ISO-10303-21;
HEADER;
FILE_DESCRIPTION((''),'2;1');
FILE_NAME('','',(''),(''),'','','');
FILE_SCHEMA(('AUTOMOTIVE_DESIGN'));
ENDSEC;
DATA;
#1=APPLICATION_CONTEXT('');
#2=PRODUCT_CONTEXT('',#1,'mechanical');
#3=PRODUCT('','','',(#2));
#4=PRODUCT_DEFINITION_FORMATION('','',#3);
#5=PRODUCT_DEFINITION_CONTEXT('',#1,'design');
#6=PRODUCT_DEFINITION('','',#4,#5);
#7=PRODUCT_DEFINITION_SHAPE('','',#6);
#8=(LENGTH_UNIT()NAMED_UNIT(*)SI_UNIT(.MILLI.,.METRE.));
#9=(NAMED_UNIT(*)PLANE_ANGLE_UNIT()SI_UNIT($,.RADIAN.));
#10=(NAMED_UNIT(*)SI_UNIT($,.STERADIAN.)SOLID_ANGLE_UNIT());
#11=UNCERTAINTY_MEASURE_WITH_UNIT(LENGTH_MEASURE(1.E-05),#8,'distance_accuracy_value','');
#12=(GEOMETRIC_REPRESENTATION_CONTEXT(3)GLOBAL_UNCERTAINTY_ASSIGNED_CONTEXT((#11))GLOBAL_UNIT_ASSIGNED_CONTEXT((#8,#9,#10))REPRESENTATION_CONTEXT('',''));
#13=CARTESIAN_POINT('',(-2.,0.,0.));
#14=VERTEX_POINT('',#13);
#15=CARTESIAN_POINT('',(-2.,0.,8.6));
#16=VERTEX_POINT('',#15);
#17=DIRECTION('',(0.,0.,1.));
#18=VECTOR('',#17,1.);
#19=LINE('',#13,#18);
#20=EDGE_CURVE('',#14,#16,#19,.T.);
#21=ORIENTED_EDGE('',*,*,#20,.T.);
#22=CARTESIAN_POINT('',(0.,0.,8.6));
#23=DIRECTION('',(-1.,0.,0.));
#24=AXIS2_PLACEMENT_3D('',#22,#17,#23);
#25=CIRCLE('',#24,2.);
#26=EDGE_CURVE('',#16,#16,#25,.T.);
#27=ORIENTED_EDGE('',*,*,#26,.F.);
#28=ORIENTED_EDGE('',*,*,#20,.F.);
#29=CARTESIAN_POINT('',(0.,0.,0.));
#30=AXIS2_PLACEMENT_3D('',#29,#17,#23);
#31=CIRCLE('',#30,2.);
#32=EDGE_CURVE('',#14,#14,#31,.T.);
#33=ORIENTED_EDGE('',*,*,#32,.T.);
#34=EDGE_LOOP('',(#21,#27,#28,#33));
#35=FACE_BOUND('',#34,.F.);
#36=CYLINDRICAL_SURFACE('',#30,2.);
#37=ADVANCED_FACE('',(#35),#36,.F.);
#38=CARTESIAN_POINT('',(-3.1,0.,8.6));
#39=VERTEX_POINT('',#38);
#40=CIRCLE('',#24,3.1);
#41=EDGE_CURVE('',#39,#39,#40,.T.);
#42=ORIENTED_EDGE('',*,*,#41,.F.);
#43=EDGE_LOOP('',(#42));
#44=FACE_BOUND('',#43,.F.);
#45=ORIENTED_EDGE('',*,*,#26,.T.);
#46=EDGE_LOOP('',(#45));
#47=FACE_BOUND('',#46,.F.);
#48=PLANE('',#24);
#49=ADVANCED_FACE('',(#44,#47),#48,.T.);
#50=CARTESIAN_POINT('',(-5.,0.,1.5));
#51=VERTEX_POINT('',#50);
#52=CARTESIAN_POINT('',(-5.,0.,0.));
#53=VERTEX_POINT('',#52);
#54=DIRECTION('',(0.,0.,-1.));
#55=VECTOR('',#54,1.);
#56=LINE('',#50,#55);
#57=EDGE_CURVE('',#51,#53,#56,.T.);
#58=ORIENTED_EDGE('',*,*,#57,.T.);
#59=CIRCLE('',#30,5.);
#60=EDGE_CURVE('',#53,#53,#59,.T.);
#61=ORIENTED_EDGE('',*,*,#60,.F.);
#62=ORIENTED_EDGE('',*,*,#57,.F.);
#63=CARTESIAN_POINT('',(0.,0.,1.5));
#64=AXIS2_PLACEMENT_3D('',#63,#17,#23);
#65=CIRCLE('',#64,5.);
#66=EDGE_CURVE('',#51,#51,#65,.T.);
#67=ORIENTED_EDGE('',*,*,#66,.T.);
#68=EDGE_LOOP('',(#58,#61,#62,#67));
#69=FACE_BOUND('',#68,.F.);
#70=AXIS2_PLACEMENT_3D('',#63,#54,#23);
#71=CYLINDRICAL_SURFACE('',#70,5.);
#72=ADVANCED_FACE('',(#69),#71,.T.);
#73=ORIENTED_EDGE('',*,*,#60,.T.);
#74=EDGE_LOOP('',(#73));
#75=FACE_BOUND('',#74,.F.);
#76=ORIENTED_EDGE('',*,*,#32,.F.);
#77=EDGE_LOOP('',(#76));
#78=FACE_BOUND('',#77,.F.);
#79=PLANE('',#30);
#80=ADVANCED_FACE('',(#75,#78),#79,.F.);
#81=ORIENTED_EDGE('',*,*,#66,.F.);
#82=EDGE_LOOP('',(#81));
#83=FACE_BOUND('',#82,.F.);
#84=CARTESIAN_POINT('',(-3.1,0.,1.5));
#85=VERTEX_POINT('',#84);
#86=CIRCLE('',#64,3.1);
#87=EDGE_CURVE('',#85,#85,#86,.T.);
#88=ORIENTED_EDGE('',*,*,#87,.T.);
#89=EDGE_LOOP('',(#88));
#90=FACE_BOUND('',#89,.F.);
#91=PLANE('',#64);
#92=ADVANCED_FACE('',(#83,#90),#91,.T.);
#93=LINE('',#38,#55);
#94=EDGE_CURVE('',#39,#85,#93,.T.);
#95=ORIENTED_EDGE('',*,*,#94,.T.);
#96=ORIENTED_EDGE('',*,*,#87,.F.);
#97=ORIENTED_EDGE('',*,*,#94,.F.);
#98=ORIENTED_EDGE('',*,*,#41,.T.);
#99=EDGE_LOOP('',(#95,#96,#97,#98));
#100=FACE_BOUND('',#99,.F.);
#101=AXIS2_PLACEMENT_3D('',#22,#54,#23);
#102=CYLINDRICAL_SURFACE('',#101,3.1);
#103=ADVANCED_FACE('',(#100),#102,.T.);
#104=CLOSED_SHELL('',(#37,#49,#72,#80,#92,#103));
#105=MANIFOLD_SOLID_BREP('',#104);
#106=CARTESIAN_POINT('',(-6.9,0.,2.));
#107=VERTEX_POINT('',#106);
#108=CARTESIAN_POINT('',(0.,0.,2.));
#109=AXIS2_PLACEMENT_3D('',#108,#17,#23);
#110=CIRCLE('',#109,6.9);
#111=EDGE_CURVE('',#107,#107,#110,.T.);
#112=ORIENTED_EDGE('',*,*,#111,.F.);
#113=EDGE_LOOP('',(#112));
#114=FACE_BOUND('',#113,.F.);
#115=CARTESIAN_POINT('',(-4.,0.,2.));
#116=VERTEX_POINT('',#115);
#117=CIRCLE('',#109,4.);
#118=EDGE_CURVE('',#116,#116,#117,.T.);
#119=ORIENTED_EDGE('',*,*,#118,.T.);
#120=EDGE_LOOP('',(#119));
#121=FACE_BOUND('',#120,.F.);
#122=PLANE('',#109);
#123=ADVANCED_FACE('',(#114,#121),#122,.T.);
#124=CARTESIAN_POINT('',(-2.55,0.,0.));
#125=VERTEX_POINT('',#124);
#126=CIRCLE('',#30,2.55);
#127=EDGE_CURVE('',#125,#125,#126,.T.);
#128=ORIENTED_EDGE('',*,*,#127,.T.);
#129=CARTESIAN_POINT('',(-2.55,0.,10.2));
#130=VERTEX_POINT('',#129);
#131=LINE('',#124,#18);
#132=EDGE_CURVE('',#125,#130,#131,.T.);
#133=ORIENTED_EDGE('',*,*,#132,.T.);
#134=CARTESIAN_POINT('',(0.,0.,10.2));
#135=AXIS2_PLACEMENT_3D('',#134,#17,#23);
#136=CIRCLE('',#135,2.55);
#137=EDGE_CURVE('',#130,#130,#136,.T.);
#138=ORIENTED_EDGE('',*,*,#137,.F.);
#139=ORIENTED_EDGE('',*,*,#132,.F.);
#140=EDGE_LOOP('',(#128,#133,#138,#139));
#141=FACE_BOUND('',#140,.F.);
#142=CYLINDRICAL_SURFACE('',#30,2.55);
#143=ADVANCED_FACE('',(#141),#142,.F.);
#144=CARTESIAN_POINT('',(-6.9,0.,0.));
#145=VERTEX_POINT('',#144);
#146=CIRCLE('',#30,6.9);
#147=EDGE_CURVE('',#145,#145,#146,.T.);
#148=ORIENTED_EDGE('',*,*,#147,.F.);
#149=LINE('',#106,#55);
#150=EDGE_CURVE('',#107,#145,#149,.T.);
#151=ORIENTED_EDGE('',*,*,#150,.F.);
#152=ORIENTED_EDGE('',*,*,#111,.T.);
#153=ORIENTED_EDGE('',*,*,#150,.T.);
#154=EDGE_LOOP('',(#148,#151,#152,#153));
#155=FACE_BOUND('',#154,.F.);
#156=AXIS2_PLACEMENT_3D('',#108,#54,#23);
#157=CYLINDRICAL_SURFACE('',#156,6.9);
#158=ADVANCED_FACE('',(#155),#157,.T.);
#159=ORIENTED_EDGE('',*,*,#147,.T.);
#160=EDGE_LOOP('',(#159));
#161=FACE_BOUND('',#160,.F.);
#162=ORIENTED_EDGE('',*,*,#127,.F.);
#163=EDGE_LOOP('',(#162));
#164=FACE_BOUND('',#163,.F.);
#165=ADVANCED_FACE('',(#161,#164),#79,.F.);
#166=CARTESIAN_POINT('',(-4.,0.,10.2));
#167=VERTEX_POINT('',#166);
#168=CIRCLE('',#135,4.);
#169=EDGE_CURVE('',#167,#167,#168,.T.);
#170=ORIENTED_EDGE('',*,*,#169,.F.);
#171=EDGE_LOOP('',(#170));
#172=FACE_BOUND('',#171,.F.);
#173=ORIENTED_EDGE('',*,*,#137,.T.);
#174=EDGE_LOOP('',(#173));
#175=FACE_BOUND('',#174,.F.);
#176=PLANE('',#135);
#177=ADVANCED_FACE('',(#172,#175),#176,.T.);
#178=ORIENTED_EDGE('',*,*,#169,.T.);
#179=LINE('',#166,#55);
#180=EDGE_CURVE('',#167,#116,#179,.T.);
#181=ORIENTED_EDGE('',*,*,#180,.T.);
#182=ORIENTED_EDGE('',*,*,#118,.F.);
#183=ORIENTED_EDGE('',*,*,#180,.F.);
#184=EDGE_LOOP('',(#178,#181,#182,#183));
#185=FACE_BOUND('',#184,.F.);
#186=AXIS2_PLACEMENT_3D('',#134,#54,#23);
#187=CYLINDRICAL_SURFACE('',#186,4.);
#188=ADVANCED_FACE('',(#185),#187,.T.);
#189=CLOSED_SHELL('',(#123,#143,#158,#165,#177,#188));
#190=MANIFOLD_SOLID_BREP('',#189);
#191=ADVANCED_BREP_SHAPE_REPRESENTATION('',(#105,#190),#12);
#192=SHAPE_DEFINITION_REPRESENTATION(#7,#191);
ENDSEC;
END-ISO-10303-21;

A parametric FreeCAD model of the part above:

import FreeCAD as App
import Part
import Sketcher

V = App.Vector

doc = App.newDocument("Part")
body = doc.addObject("PartDesign::Body", "Body")

sketch1 = body.newObject("Sketcher::SketchObject", "Sketch")
sketch1.AttachmentSupport = (doc.getObject("XZ_Plane"), [""])
sketch1.MapMode = "FlatFace"
sketch1.addGeometry(Part.LineSegment(V(-5, 0, 0), V(-2, 0, 0)), False)
sketch1.addGeometry(Part.LineSegment(V(-2, 0, 0), V(-2, 8.6, 0)), False)
sketch1.addGeometry(Part.LineSegment(V(-2, 8.6, 0), V(-3.1, 8.6, 0)), False)
sketch1.addGeometry(Part.LineSegment(V(-3.1, 8.6, 0), V(-3.1, 1.5, 0)), False)
sketch1.addGeometry(Part.LineSegment(V(-3.1, 1.5, 0), V(-5, 1.5, 0)), False)
sketch1.addGeometry(Part.LineSegment(V(-5, 1.5, 0), V(-5, 0, 0)), False)
sketch1.addConstraint(Sketcher.Constraint("Coincident", 0, 2, 1, 1))
sketch1.addConstraint(Sketcher.Constraint("Coincident", 1, 2, 2, 1))
sketch1.addConstraint(Sketcher.Constraint("Coincident", 2, 2, 3, 1))
sketch1.addConstraint(Sketcher.Constraint("Coincident", 3, 2, 4, 1))
sketch1.addConstraint(Sketcher.Constraint("Coincident", 4, 2, 5, 1))
sketch1.addConstraint(Sketcher.Constraint("Coincident", 5, 2, 0, 1))
sketch1.addConstraint(Sketcher.Constraint("Horizontal", 0))
sketch1.addConstraint(Sketcher.Constraint("Vertical", 1))
sketch1.addConstraint(Sketcher.Constraint("Horizontal", 2))
sketch1.addConstraint(Sketcher.Constraint("Vertical", 3))
sketch1.addConstraint(Sketcher.Constraint("Horizontal", 4))
sketch1.addConstraint(Sketcher.Constraint("Vertical", 5))
sketch1.addConstraint(Sketcher.Constraint("PointOnObject", 0, 2, -1))
sketch1.addConstraint(Sketcher.Constraint("DistanceX", 0, 1, 0, 2, 3.0))
sketch1.addConstraint(Sketcher.Constraint("DistanceX", 2, 2, 2, 1, 1.1))
sketch1.addConstraint(Sketcher.Constraint("DistanceY", 1, 1, 1, 2, 8.6))
sketch1.addConstraint(Sketcher.Constraint("DistanceY", 3, 2, 3, 1, 7.1))
sketch1.addConstraint(Sketcher.Constraint("DistanceX", 0, 2, -1, 1, 2.0))
revolution = body.newObject("PartDesign::Revolution", "Revolution")
revolution.Profile = sketch1
revolution.ReferenceAxis = (sketch1, ["V_Axis"])
revolution.Angle = 360
body2 = doc.addObject("PartDesign::Body", "Body001")

sketch2 = body2.newObject("Sketcher::SketchObject", "Sketch001")
sketch2.AttachmentSupport = (doc.getObject("XZ_Plane001"), [""])
sketch2.MapMode = "FlatFace"
sketch2.addGeometry(Part.LineSegment(V(-6.9, 0, 0), V(-2.5, 0, 0)), False)
sketch2.addGeometry(Part.LineSegment(V(-2.5, 0, 0), V(-2.5, 10.2, 0)), False)
sketch2.addGeometry(Part.LineSegment(V(-2.5, 10.2, 0), V(-4, 10.2, 0)), False)
sketch2.addGeometry(Part.LineSegment(V(-4, 10.2, 0), V(-4, 2, 0)), False)
sketch2.addGeometry(Part.LineSegment(V(-4, 2, 0), V(-6.9, 2, 0)), False)
sketch2.addGeometry(Part.LineSegment(V(-6.9, 2, 0), V(-6.9, 0, 0)), False)
sketch2.addConstraint(Sketcher.Constraint("Coincident", 0, 2, 1, 1))
sketch2.addConstraint(Sketcher.Constraint("Coincident", 1, 2, 2, 1))
sketch2.addConstraint(Sketcher.Constraint("Coincident", 2, 2, 3, 1))
sketch2.addConstraint(Sketcher.Constraint("Coincident", 3, 2, 4, 1))
sketch2.addConstraint(Sketcher.Constraint("Coincident", 4, 2, 5, 1))
sketch2.addConstraint(Sketcher.Constraint("Coincident", 5, 2, 0, 1))
sketch2.addConstraint(Sketcher.Constraint("Horizontal", 0))
sketch2.addConstraint(Sketcher.Constraint("Vertical", 1))
sketch2.addConstraint(Sketcher.Constraint("Horizontal", 2))
sketch2.addConstraint(Sketcher.Constraint("Vertical", 3))
sketch2.addConstraint(Sketcher.Constraint("Horizontal", 4))
sketch2.addConstraint(Sketcher.Constraint("Vertical", 5))
sketch2.addConstraint(Sketcher.Constraint("PointOnObject", 0, 2, -1))
sketch2.addConstraint(Sketcher.Constraint("DistanceY", 5, 2, 5, 1, 2.0))
sketch2.addConstraint(Sketcher.Constraint("DistanceX", 4, 2, 4, 1, 2.9))
sketch2.addConstraint(Sketcher.Constraint("DistanceY", 1, 1, 1, 2, 10.2))
sketch2.addConstraint(Sketcher.Constraint("DistanceX", 2, 2, -1, 1, 4.0))
sketch2.addConstraint(Sketcher.Constraint("DistanceX", 0, 1, 0, 2, 4.35))
revolution2 = body2.newObject("PartDesign::Revolution", "Revolution001")
revolution2.Profile = sketch2
revolution2.ReferenceAxis = (sketch2, ["V_Axis"])
revolution2.Angle = 360

doc.recompute()
